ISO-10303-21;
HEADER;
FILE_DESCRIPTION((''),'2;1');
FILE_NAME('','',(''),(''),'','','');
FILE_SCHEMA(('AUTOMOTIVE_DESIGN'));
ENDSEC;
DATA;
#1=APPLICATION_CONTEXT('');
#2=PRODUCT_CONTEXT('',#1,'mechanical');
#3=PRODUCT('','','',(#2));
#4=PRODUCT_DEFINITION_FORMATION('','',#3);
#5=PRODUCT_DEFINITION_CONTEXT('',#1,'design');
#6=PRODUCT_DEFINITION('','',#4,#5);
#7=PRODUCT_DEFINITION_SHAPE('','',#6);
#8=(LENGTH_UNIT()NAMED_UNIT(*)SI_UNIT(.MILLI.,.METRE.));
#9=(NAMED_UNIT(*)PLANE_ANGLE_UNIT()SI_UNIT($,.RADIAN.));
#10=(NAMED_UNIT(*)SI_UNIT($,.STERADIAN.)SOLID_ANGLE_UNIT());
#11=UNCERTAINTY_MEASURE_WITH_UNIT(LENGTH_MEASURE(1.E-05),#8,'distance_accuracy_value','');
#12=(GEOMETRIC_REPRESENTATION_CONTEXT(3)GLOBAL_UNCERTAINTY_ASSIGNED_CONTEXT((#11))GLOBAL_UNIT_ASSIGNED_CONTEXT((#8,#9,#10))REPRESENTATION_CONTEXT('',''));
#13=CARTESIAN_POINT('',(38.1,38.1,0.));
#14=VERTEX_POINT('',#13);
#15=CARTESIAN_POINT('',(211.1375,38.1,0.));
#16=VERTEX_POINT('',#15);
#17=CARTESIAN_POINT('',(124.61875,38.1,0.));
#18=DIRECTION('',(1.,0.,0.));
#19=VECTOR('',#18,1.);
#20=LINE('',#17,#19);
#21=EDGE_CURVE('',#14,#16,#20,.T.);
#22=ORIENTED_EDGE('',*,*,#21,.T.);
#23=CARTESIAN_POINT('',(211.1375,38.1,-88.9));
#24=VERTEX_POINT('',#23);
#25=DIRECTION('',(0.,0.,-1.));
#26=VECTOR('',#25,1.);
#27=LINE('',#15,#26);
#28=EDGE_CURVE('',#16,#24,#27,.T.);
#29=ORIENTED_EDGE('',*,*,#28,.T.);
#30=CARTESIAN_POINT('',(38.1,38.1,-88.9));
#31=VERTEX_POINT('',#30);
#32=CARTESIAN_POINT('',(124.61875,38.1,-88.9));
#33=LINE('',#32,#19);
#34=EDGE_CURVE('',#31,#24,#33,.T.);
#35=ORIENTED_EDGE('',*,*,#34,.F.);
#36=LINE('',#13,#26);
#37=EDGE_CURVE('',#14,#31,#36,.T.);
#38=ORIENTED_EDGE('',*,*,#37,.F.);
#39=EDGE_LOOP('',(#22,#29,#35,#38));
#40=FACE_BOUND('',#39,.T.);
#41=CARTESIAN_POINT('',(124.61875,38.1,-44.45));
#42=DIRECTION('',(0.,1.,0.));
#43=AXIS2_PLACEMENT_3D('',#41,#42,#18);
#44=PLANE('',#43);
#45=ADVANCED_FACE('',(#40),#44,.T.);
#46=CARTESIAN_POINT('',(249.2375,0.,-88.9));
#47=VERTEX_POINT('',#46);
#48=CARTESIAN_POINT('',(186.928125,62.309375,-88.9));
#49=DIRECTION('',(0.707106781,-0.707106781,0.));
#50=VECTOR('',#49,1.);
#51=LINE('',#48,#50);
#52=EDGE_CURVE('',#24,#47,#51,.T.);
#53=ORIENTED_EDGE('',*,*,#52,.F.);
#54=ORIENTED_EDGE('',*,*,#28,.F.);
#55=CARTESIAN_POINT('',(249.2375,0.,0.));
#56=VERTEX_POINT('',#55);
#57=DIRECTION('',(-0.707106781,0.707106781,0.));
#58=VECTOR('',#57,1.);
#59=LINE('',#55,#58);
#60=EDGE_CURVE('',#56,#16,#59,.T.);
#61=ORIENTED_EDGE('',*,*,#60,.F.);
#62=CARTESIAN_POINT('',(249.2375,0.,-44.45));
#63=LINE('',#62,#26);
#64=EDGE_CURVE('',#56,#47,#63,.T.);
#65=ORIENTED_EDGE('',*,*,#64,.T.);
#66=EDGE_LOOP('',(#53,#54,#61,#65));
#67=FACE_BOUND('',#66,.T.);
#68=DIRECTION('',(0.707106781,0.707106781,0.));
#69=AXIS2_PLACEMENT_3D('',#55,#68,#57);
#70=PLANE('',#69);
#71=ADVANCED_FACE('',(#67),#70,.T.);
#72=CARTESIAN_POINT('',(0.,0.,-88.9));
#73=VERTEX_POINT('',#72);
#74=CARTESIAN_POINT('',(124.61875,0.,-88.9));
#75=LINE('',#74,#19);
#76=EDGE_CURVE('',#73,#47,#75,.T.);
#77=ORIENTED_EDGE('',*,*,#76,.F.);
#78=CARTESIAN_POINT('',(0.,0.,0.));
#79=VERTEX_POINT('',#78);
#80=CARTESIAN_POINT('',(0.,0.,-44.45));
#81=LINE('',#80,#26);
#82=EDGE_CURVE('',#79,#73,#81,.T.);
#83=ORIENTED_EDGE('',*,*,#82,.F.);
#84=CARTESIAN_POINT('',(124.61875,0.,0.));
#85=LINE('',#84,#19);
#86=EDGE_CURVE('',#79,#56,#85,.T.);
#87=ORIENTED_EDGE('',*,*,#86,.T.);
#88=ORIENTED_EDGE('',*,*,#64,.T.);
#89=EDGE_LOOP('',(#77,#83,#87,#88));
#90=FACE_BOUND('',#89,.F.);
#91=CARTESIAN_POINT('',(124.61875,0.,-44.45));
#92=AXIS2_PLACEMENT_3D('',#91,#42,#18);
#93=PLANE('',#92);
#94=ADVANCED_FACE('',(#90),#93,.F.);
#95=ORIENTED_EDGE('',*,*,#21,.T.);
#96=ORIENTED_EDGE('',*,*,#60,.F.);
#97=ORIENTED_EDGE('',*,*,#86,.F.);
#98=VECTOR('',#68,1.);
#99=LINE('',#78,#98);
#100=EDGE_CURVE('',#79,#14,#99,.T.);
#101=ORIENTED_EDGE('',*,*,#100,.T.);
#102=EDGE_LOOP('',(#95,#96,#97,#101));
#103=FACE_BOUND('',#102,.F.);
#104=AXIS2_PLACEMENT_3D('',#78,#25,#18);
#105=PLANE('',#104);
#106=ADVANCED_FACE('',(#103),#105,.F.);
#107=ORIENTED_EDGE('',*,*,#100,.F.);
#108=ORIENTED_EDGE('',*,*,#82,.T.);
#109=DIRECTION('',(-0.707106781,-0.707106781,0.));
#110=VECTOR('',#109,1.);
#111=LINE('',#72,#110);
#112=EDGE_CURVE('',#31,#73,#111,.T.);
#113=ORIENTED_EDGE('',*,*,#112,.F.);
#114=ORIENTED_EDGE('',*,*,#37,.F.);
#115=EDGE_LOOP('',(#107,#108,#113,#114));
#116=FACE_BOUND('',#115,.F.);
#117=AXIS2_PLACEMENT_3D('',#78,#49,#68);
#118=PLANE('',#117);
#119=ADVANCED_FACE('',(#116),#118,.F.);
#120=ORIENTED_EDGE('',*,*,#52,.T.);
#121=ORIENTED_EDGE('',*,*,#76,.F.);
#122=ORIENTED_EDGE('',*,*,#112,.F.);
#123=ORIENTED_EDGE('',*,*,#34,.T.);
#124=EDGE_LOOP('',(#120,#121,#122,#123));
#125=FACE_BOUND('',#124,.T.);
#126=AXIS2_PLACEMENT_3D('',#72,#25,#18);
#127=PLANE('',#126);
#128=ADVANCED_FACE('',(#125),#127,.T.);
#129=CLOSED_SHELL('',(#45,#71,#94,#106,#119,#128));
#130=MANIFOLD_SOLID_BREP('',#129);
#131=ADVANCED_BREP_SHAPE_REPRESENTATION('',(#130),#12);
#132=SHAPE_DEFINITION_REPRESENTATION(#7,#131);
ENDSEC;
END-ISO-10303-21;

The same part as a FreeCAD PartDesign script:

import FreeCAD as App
import Part
import Sketcher

V = App.Vector
Q = App.Units.Quantity

doc = App.newDocument("Part")
body = doc.addObject("PartDesign::Body", "Body")

# Sketch on XZ plane
sketch1 = body.newObject("Sketcher::SketchObject", "Sketch")
sketch1.AttachmentSupport = (doc.getObject("XZ_Plane"), [""])
sketch1.MapMode = "FlatFace"
sketch1.addGeometry([
    Part.LineSegment(V(0, -89, 0), V(0, 0, 0)),
    Part.LineSegment(V(0, 0, 0), V(249, 0, 0)),
    Part.LineSegment(V(249, 0, 0), V(249, -89, 0)),
    Part.LineSegment(V(249, -89, 0), V(0, -89, 0)),
], False)
sketch1.addConstraint([
    Sketcher.Constraint("Coincident", 0, 2, 1, 1),
    Sketcher.Constraint("Coincident", 1, 2, 2, 1),
    Sketcher.Constraint("Coincident", 2, 2, 3, 1),
    Sketcher.Constraint("Coincident", 3, 2, 0, 1),
    Sketcher.Constraint("Vertical", 0),
    Sketcher.Constraint("Horizontal", 1),
    Sketcher.Constraint("Vertical", 2),
    Sketcher.Constraint("Horizontal", 3),
    Sketcher.Constraint("Coincident", 0, 2, -1, 1),
    Sketcher.Constraint("DistanceY", 0, 1, 0, 2, Q("3.5 in")),
    Sketcher.Constraint("DistanceX", 1, 1, 1, 2, Q("9.8125 in")),
])
pad1 = body.newObject("PartDesign::Pad", "Pad")
pad1.Profile = sketch1
pad1.Length = Q("1.5 in")
pad1.Reversed = True

# Sketch on XY plane
sketch2 = body.newObject("Sketcher::SketchObject", "Sketch001")
sketch2.AttachmentSupport = (doc.getObject("XY_Plane"), [""])
sketch2.MapMode = "FlatFace"
sketch2.addGeometry([
    Part.LineSegment(V(0, 0, 0), V(38, 38, 0)),  # 0
    Part.LineSegment(V(38, 38, 0), V(0, 38, 0)),  # 1
    Part.LineSegment(V(0, 38, 0), V(0, 0, 0)),  # 2
    Part.LineSegment(V(211, 38, 0), V(249, 0, 0)),  # 3
    Part.LineSegment(V(249, 0, 0), V(249, 38, 0)),  # 4
    Part.LineSegment(V(249, 38, 0), V(211, 38, 0)),  # 5
], False)
sketch2.addConstraint([
    Sketcher.Constraint("Coincident", 0, 2, 1, 1),
    Sketcher.Constraint("Coincident", 1, 2, 2, 1),
    Sketcher.Constraint("Coincident", 2, 2, 0, 1),
    Sketcher.Constraint("Coincident", 3, 2, 4, 1),
    Sketcher.Constraint("Coincident", 4, 2, 5, 1),
    Sketcher.Constraint("Coincident", 5, 2, 3, 1),
    Sketcher.Constraint("Horizontal", 1),
    Sketcher.Constraint("Vertical", 2),
    Sketcher.Constraint("Vertical", 4),
    Sketcher.Constraint("Horizontal", 5),
    Sketcher.Constraint("Coincident", 2, 2, -1, 1),
    Sketcher.Constraint("PointOnObject", 3, 2, -1),
    Sketcher.Constraint("Perpendicular", 0, 3),
    Sketcher.Constraint("Horizontal", 1, 2, 4, 2),
    Sketcher.Constraint("Equal", 1, 5),
    Sketcher.Constraint("DistanceX", 1, 2, 1, 1, Q("1.5 in")),
    Sketcher.Constraint("DistanceX", -1, 1, 3, 2, Q("9.8125 in")),
])
pocket1 = body.newObject("PartDesign::Pocket", "Pocket")
pocket1.Profile = sketch2
pocket1.Type = "ThroughAll"

doc.recompute()
